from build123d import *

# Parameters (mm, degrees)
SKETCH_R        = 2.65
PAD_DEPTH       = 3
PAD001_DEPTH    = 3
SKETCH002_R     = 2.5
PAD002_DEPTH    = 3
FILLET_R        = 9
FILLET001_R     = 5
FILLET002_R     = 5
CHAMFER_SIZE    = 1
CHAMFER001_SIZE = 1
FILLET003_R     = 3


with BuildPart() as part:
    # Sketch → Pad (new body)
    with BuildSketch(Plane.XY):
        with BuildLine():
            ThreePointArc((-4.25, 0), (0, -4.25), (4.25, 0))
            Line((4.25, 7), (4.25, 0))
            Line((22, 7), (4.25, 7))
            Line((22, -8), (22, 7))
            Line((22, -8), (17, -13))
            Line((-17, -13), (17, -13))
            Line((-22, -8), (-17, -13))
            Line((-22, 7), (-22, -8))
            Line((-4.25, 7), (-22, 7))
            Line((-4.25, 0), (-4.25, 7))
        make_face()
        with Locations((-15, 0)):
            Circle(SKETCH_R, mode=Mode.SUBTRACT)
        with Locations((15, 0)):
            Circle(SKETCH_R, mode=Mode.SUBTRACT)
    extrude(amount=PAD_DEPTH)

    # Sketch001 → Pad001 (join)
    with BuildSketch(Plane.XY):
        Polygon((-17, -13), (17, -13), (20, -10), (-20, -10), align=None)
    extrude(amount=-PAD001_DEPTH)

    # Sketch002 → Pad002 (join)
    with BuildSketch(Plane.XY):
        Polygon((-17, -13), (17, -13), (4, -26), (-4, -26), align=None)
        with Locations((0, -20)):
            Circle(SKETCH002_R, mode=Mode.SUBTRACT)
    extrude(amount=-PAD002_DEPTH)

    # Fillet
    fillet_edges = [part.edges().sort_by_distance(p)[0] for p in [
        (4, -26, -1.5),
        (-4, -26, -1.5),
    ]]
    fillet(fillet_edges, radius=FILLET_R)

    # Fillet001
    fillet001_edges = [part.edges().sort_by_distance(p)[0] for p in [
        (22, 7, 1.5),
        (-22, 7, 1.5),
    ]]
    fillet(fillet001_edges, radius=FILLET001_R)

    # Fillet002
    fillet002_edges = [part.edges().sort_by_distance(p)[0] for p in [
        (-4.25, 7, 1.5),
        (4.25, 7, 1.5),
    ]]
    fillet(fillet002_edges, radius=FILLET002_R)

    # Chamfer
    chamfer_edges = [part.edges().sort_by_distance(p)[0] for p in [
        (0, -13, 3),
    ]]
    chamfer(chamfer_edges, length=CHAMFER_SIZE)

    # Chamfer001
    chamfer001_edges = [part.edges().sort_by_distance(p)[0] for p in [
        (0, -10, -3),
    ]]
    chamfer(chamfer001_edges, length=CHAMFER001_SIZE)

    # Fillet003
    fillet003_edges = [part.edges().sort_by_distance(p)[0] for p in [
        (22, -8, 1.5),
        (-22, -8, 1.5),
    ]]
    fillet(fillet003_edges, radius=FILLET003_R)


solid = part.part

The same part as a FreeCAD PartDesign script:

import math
import FreeCAD as App
import Part
import Sketcher


def edges_at(feature, points):
    """Names of the edges that pass closest to the given points."""
    edges = feature.Shape.Edges
    near = lambda p: min(range(len(edges)), key=lambda i: edges[i].distToShape(Part.Vertex(*p))[0])
    return sorted({f"Edge{near(p) + 1}" for p in points})

doc = App.newDocument("Part")
body = doc.addObject("PartDesign::Body", "Body")

# Sketch on XY plane
sketch1 = doc.addObject("Sketcher::SketchObject", "Sketch")
body.addObject(sketch1)
sketch1.AttachmentSupport = (doc.XY_Plane, [""])
sketch1.MapMode = "FlatFace"
sketch1.addGeometry([
    Part.ArcOfCircle(Part.Circle(App.Vector(0, 0, 0), App.Vector(0, 0, 1), 4.25), math.radians(180), math.radians(360)),  # 0
    Part.LineSegment(App.Vector(-4.25, 0, 0), App.Vector(-4.25, 7, 0)),  # 1
    Part.LineSegment(App.Vector(-4.25, 7, 0), App.Vector(-22, 7, 0)),  # 2
    Part.LineSegment(App.Vector(-22, 7, 0), App.Vector(-22, -8, 0)),  # 3
    Part.LineSegment(App.Vector(-22, -8, 0), App.Vector(-17, -13, 0)),  # 4
    Part.LineSegment(App.Vector(-17, -13, 0), App.Vector(17, -13, 0)),  # 5
    Part.LineSegment(App.Vector(17, -13, 0), App.Vector(22, -8, 0)),  # 6
    Part.LineSegment(App.Vector(22, -8, 0), App.Vector(22, 7, 0)),  # 7
    Part.LineSegment(App.Vector(22, 7, 0), App.Vector(4.25, 7, 0)),  # 8
    Part.LineSegment(App.Vector(4.25, 7, 0), App.Vector(4.25, 0, 0)),  # 9
    Part.Circle(App.Vector(15, 0, 0), App.Vector(0, 0, 1), 2.65),  # 10
    Part.Circle(App.Vector(-15, 0, 0), App.Vector(0, 0, 1), 2.65),  # 11
], False)
sketch1.addConstraint([
    Sketcher.Constraint("Tangent", 0, 1, 1, 1),
    Sketcher.Constraint("Coincident", 1, 2, 2, 1),
    Sketcher.Constraint("Coincident", 2, 2, 3, 1),
    Sketcher.Constraint("Coincident", 3, 2, 4, 1),
    Sketcher.Constraint("Coincident", 4, 2, 5, 1),
    Sketcher.Constraint("Coincident", 5, 2, 6, 1),
    Sketcher.Constraint("Coincident", 6, 2, 7, 1),
    Sketcher.Constraint("Coincident", 7, 2, 8, 1),
    Sketcher.Constraint("Coincident", 8, 2, 9, 1),
    Sketcher.Constraint("Tangent", 9, 2, 0, 2),
    Sketcher.Constraint("Vertical", 1),
    Sketcher.Constraint("Horizontal", 2),
    Sketcher.Constraint("Vertical", 3),
    Sketcher.Constraint("Horizontal", 5),
    Sketcher.Constraint("Vertical", 7),
    Sketcher.Constraint("Horizontal", 8),
    Sketcher.Constraint("Vertical", 9),
    Sketcher.Constraint("Coincident", 0, 3, -1, 1),
    Sketcher.Constraint("Equal", 10, 11),
    Sketcher.Constraint("Symmetric", 10, 3, 11, 3, -1, 1),
    Sketcher.Constraint("Symmetric", 3, 2, 6, 2, -2),
    Sketcher.Constraint("PointOnObject", 10, 3, -1),
    Sketcher.Constraint("Perpendicular", 4, 6),
    Sketcher.Constraint("Horizontal", 2, 2, 7, 2),
    Sketcher.Constraint("Equal", 4, 6),
    Sketcher.Constraint("Diameter", 10, 5.3),
    Sketcher.Constraint("DistanceX", 5, 1, 5, 2, 34.0),
    Sketcher.Constraint("DistanceY", 1, 1, 1, 2, 7.0),
    Sketcher.Constraint("DistanceY", 3, 2, 3, 1, 15.0),
    Sketcher.Constraint("Radius", 0, 4.25),
    Sketcher.Constraint("DistanceX", -1, 1, 10, 3, 15.0),
    Sketcher.Constraint("DistanceX", 2, 2, -1, 1, 22.0),
])
pad1 = doc.addObject("PartDesign::Pad", "Pad")
body.addObject(pad1)
pad1.Profile = sketch1
pad1.Length = 3

# Sketch on XY plane
sketch2 = doc.addObject("Sketcher::SketchObject", "Sketch001")
body.addObject(sketch2)
sketch2.AttachmentSupport = (doc.XY_Plane, [""])
sketch2.MapMode = "FlatFace"
sketch2.addGeometry([
    Part.LineSegment(App.Vector(-17, -13, 0), App.Vector(17, -13, 0)),
    Part.LineSegment(App.Vector(17, -13, 0), App.Vector(20, -10, 0)),
    Part.LineSegment(App.Vector(20, -10, 0), App.Vector(-20, -10, 0)),
    Part.LineSegment(App.Vector(-20, -10, 0), App.Vector(-17, -13, 0)),
], False)
sketch2.addConstraint([
    Sketcher.Constraint("Coincident", 0, 2, 1, 1),
    Sketcher.Constraint("Coincident", 1, 2, 2, 1),
    Sketcher.Constraint("Coincident", 2, 2, 3, 1),
    Sketcher.Constraint("Coincident", 3, 2, 0, 1),
    Sketcher.Constraint("Horizontal", 0),
    Sketcher.Constraint("Horizontal", 2),
    Sketcher.Constraint("Perpendicular", 1, 3),
    Sketcher.Constraint("Equal", 1, 3),
    Sketcher.Constraint("DistanceX", 0, 1, 0, 2, 34.0),
    Sketcher.Constraint("DistanceX", 2, 2, 2, 1, 40.0),
    Sketcher.Constraint("DistanceX", -1, 1, 0, 2, 17.0),
    Sketcher.Constraint("DistanceY", 0, 2, -1, 1, 13.0),
])
pad2 = doc.addObject("PartDesign::Pad", "Pad001")
body.addObject(pad2)
pad2.Profile = sketch2
pad2.Length = 3
pad2.Reversed = True

# Sketch on XY plane
sketch3 = doc.addObject("Sketcher::SketchObject", "Sketch002")
body.addObject(sketch3)
sketch3.AttachmentSupport = (doc.XY_Plane, [""])
sketch3.MapMode = "FlatFace"
sketch3.addGeometry([
    Part.LineSegment(App.Vector(17, -13, 0), App.Vector(-17, -13, 0)),  # 0
    Part.LineSegment(App.Vector(-17, -13, 0), App.Vector(-4, -26, 0)),  # 1
    Part.LineSegment(App.Vector(-4, -26, 0), App.Vector(4, -26, 0)),  # 2
    Part.LineSegment(App.Vector(4, -26, 0), App.Vector(17, -13, 0)),  # 3
    Part.Circle(App.Vector(0, -20, 0), App.Vector(0, 0, 1), 2.5),  # 4
], False)
sketch3.addConstraint([
    Sketcher.Constraint("Coincident", 0, 2, 1, 1),
    Sketcher.Constraint("Coincident", 1, 2, 2, 1),
    Sketcher.Constraint("Coincident", 2, 2, 3, 1),
    Sketcher.Constraint("Coincident", 3, 2, 0, 1),
    Sketcher.Constraint("Horizontal", 0),
    Sketcher.Constraint("Horizontal", 2),
    Sketcher.Constraint("PointOnObject", 4, 3, -2),
    Sketcher.Constraint("Perpendicular", 1, 3),
    Sketcher.Constraint("Equal", 1, 3),
    Sketcher.Constraint("Diameter", 4, 5.0),
    Sketcher.Constraint("DistanceX", 0, 2, 0, 1, 34.0),
    Sketcher.Constraint("DistanceX", 2, 1, 2, 2, 8.0),
    Sketcher.Constraint("DistanceY", 4, 3, -1, 1, 20.0),
    Sketcher.Constraint("DistanceX", 0, 2, -1, 1, 17.0),
    Sketcher.Constraint("DistanceY", 0, 2, -1, 1, 13.0),
])
pad3 = doc.addObject("PartDesign::Pad", "Pad002")
body.addObject(pad3)
pad3.Profile = sketch3
pad3.Length = 3
pad3.Reversed = True
doc.recompute()

fillet = doc.addObject("PartDesign::Fillet", "Fillet")
body.addObject(fillet)
fillet.Base = (pad3, edges_at(pad3, [(4, -26, -1.5), (-4, -26, -1.5)]))
fillet.Radius = 9
doc.recompute()

fillet2 = doc.addObject("PartDesign::Fillet", "Fillet001")
body.addObject(fillet2)
fillet2.Base = (fillet, edges_at(fillet, [(22, 7, 1.5), (-22, 7, 1.5)]))
fillet2.Radius = 5
doc.recompute()

fillet3 = doc.addObject("PartDesign::Fillet", "Fillet002")
body.addObject(fillet3)
fillet3.Base = (fillet2, edges_at(fillet2, [(-4.25, 7, 1.5), (4.25, 7, 1.5)]))
fillet3.Radius = 5
doc.recompute()

chamfer = doc.addObject("PartDesign::Chamfer", "Chamfer")
body.addObject(chamfer)
chamfer.Base = (fillet3, edges_at(fillet3, [(0, -13, 3)]))
chamfer.Size = 1
doc.recompute()

chamfer2 = doc.addObject("PartDesign::Chamfer", "Chamfer001")
body.addObject(chamfer2)
chamfer2.Base = (chamfer, edges_at(chamfer, [(0, -10, -3)]))
chamfer2.Size = 1
doc.recompute()

fillet4 = doc.addObject("PartDesign::Fillet", "Fillet003")
body.addObject(fillet4)
fillet4.Base = (chamfer2, edges_at(chamfer2, [(22, -8, 1.5), (-22, -8, 1.5)]))
fillet4.Radius = 3

doc.recompute()
